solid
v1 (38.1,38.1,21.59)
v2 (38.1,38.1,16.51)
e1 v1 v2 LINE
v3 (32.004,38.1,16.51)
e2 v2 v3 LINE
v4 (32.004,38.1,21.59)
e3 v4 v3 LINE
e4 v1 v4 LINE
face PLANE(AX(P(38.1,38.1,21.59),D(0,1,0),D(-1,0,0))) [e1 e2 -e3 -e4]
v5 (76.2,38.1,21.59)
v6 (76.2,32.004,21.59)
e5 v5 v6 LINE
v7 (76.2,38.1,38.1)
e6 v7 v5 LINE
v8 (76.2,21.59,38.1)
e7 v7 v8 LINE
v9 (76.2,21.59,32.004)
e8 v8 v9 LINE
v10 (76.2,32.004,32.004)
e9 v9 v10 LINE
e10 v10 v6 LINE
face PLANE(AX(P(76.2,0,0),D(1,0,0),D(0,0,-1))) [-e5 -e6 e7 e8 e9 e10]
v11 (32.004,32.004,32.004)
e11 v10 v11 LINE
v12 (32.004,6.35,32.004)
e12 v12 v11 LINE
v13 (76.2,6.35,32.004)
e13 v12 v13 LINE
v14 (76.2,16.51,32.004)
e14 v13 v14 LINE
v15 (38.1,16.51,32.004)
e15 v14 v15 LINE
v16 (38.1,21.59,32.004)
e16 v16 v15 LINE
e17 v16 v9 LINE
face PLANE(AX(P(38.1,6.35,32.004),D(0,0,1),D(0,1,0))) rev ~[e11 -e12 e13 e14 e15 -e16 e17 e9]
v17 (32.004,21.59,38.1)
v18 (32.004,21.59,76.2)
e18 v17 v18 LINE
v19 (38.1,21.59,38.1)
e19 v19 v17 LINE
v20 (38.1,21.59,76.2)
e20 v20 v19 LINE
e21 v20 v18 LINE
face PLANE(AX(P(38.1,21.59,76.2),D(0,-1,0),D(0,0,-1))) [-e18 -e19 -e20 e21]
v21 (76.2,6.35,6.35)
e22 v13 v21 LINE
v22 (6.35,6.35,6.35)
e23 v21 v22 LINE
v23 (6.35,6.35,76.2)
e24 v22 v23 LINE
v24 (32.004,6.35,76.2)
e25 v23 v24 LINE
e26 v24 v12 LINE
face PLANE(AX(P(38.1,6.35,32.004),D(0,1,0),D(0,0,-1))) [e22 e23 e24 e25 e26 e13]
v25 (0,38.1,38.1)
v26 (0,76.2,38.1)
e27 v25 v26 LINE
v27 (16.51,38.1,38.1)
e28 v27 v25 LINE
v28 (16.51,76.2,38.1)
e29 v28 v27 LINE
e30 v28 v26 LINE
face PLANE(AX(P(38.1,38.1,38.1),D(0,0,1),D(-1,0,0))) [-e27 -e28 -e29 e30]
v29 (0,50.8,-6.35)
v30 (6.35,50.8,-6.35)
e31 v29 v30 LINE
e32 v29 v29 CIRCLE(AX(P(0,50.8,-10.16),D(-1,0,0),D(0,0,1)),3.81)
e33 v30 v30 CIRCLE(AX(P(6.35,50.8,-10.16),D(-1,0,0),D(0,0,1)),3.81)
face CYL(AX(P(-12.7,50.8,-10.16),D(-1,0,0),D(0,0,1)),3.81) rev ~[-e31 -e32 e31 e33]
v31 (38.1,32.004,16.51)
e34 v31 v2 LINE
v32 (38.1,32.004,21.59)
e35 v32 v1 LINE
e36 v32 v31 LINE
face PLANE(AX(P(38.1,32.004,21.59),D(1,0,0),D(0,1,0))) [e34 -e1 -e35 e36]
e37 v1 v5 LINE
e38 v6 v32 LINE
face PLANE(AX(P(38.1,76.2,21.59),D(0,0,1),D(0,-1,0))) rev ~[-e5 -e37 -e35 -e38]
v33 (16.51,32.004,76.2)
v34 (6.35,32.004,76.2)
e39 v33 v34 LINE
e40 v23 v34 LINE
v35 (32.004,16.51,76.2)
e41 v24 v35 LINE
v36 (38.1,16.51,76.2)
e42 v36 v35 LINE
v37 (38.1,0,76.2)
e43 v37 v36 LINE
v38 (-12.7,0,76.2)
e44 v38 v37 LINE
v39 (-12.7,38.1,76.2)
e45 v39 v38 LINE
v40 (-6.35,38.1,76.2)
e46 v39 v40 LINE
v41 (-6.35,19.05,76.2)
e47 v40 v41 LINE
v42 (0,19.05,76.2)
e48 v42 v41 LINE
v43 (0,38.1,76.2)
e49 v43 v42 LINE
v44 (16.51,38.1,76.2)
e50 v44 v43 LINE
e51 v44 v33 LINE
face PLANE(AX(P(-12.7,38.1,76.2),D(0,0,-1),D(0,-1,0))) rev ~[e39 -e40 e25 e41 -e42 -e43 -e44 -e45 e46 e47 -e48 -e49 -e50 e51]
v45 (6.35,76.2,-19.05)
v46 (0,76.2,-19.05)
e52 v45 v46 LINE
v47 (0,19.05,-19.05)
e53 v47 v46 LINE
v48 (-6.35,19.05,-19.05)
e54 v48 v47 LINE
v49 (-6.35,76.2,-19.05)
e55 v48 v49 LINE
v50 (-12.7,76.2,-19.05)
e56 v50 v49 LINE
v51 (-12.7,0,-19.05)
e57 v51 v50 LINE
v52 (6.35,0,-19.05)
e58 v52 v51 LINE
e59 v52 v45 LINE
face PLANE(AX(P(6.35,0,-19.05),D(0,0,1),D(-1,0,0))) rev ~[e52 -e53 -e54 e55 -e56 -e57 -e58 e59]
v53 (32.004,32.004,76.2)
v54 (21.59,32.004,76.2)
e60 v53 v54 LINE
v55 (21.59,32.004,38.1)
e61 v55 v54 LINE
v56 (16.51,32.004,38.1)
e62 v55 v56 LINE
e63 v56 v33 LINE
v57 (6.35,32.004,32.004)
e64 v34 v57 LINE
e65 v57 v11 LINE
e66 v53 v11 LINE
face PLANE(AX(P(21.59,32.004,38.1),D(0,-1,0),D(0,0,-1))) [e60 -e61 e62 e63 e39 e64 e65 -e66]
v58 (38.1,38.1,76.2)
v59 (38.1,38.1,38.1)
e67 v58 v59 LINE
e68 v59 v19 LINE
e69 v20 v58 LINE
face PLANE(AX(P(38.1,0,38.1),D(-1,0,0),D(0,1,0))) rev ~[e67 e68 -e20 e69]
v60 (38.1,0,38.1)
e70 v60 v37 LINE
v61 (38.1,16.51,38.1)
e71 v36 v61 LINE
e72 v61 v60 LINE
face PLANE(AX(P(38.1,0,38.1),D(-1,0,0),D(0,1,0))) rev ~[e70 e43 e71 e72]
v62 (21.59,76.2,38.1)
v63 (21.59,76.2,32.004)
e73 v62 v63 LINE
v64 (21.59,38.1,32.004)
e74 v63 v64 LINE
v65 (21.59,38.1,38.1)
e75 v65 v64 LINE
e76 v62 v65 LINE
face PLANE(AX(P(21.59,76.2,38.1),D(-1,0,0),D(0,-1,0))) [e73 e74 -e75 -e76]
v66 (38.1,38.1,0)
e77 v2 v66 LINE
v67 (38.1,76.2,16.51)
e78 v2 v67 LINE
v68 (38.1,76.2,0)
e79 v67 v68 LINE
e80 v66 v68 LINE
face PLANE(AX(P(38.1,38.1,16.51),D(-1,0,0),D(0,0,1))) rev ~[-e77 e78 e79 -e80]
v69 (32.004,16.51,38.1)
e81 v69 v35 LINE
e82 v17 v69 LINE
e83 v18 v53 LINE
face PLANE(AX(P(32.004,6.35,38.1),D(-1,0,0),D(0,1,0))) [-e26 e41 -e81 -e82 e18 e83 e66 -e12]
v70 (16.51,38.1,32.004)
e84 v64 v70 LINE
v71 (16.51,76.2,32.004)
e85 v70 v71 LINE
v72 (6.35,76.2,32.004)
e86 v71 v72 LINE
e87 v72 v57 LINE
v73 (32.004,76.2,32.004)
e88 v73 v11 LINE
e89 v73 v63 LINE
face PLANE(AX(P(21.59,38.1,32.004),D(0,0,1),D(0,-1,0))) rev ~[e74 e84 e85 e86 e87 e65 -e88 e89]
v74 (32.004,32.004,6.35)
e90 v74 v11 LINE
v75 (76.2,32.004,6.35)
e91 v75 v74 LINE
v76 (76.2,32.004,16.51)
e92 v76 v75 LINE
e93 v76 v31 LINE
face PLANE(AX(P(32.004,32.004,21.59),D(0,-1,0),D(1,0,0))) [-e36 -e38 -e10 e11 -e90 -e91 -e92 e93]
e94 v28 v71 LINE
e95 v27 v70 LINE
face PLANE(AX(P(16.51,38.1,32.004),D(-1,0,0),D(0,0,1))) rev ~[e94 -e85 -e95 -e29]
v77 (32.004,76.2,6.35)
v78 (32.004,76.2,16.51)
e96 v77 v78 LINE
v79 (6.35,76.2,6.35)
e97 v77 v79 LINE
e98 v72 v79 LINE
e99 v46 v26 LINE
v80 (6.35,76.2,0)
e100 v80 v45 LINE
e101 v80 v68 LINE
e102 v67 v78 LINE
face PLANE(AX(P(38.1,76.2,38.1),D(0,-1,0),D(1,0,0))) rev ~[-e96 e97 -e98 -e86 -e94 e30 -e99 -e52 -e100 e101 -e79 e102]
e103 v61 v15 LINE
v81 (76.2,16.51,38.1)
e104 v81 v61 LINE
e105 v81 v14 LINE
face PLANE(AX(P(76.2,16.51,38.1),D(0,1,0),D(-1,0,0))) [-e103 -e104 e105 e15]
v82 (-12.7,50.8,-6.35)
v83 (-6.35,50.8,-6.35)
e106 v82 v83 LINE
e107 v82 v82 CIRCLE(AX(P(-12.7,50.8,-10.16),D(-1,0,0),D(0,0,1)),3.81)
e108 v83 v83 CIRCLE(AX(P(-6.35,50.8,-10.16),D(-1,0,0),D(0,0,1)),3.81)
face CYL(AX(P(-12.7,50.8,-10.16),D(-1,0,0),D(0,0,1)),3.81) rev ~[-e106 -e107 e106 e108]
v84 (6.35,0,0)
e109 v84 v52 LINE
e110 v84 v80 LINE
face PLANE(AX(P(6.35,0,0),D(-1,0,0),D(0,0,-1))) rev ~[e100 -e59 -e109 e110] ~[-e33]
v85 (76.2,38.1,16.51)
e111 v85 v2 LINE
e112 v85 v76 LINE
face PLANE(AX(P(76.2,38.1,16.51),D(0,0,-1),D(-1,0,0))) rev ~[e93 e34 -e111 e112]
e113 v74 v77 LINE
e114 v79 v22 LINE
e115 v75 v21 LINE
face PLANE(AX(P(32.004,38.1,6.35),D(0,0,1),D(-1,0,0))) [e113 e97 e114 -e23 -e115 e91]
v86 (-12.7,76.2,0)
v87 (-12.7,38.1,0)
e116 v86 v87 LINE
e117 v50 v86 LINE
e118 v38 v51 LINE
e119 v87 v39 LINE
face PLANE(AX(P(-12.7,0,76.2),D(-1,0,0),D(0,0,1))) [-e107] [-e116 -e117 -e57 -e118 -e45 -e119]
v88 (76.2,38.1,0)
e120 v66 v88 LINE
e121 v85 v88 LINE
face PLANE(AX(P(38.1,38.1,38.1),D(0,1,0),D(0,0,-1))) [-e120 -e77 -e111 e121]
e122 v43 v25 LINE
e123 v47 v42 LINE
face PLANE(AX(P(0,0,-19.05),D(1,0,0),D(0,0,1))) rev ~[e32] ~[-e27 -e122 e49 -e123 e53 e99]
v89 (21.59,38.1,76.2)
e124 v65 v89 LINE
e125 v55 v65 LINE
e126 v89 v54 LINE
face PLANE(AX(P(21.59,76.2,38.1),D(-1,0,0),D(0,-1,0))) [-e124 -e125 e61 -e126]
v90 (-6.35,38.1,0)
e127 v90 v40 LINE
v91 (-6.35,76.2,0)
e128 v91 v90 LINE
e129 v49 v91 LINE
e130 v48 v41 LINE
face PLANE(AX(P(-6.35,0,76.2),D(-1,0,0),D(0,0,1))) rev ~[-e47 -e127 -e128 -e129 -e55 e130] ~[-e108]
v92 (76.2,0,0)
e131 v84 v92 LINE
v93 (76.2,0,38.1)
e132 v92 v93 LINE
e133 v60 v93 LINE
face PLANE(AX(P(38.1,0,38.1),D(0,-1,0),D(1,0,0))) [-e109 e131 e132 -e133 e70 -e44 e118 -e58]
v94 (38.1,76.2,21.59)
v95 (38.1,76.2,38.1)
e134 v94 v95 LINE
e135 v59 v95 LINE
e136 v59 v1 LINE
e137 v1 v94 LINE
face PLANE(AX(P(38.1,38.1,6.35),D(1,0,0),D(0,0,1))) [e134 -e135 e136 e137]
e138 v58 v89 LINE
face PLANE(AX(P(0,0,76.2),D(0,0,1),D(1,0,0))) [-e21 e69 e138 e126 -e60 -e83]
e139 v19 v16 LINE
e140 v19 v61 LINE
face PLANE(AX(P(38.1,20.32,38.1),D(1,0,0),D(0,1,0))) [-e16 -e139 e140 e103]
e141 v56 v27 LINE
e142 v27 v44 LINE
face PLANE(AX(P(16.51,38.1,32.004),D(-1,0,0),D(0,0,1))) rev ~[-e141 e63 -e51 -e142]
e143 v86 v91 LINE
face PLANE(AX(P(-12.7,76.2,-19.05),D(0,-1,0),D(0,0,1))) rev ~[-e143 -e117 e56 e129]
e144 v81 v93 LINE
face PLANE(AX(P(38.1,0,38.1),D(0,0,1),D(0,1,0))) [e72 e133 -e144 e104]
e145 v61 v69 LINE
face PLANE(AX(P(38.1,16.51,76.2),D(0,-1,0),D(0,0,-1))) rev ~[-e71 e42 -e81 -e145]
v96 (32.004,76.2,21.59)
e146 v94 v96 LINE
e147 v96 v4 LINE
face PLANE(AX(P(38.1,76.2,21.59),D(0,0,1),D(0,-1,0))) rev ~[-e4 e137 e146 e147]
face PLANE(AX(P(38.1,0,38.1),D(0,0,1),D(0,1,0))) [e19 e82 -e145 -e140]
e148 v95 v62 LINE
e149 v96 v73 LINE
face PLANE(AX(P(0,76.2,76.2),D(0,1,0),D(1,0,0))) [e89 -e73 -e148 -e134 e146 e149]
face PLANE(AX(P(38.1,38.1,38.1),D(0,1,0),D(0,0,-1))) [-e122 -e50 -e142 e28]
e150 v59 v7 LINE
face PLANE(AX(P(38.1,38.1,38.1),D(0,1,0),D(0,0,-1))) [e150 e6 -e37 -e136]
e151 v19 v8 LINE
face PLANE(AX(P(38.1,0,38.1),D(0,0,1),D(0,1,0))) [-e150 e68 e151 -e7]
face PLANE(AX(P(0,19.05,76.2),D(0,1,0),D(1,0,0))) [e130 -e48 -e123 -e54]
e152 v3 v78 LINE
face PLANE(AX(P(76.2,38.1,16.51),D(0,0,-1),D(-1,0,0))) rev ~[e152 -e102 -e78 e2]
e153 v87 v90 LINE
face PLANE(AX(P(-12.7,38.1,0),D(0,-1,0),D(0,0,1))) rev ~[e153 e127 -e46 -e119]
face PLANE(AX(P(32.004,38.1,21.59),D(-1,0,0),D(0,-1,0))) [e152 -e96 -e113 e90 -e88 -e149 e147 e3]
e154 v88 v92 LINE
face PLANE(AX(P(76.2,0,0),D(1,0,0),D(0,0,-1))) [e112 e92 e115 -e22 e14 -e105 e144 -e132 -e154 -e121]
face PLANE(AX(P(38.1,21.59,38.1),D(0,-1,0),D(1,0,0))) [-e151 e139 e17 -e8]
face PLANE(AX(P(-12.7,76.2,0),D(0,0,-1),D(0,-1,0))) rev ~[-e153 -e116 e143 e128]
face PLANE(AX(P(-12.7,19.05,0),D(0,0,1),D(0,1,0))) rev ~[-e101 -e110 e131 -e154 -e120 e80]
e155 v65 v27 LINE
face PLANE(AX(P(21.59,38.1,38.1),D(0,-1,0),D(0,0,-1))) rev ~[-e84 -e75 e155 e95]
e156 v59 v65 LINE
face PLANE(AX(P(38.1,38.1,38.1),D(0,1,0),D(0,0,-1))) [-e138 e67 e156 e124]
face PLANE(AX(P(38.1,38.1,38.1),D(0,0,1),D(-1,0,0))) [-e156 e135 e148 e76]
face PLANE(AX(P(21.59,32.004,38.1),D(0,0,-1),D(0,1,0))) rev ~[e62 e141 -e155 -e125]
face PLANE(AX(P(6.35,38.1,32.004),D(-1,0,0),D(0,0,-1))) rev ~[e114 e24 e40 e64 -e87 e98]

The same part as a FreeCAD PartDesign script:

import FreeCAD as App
import Part
import Sketcher

V = App.Vector
Q = App.Units.Quantity


def add_polygon(sketch, points):
    """Adds a closed chain of lines whose ends are joined by coincident constraints."""
    first, n = sketch.GeometryCount, len(points)
    for a, b in zip(points, points[1:] + points[:1]):
        sketch.addGeometry(Part.LineSegment(App.Vector(*a, 0), App.Vector(*b, 0)), False)
    for i in range(n):
        sketch.addConstraint(Sketcher.Constraint("Coincident", first + i, 2, first + (i + 1) % n, 1))

doc = App.newDocument("Part")
body = doc.addObject("PartDesign::Body", "Body")

sketch1 = doc.addObject("Sketcher::SketchObject", "Sketch")
body.addObject(sketch1)
sketch1.AttachmentSupport = (doc.XY_Plane, [""])
sketch1.MapMode = "FlatFace"
add_polygon(sketch1, [(0, 38), (0, 0), (38, 0), (38, 38)])
sketch1.addConstraint(Sketcher.Constraint("Vertical", 0))
sketch1.addConstraint(Sketcher.Constraint("Horizontal", 1))
sketch1.addConstraint(Sketcher.Constraint("Vertical", 2))
sketch1.addConstraint(Sketcher.Constraint("Horizontal", 3))
sketch1.addConstraint(Sketcher.Constraint("Coincident", 0, 2, -1, 1))
sketch1.addConstraint(Sketcher.Constraint("Equal", 3, 0))
sketch1.addConstraint(Sketcher.Constraint("DistanceX", 1, 1, 1, 2, Q("1.5 in")))
pad1 = doc.addObject("PartDesign::Pad", "Pad")
body.addObject(pad1)
pad1.Profile = sketch1
pad1.Length = Q("1.5 in")

sketch2 = doc.addObject("Sketcher::SketchObject", "Sketch001")
body.addObject(sketch2)
sketch2.AttachmentSupport = (doc.XY_Plane, [""])
sketch2.MapMode = "FlatFace"
sketch2.AttachmentOffset = App.Placement(V(0, 0, 1.5 * 25.4), App.Rotation())
add_polygon(sketch2, [(6, 32), (6, 6), (32, 6), (32, 32)])
sketch2.addConstraint(Sketcher.Constraint("Vertical", 0))
sketch2.addConstraint(Sketcher.Constraint("Horizontal", 1))
sketch2.addConstraint(Sketcher.Constraint("Vertical", 2))
sketch2.addConstraint(Sketcher.Constraint("Horizontal", 3))
sketch2.addConstraint(Sketcher.Constraint("Equal", 3, 0))
sketch2.addConstraint(Sketcher.Constraint("DistanceX", 1, 1, 1, 2, Q("1.01 in")))
sketch2.addConstraint(Sketcher.Constraint("DistanceX", -1, 1, 0, 2, Q("0.25 in")))
sketch2.addConstraint(Sketcher.Constraint("DistanceY", -1, 1, 0, 2, Q("0.25 in")))
pocket1 = doc.addObject("PartDesign::Pocket", "Pocket")
body.addObject(pocket1)
pocket1.Profile = sketch2
pocket1.Length = Q("1.25 in")

sketch3 = doc.addObject("Sketcher::SketchObject", "Sketch002")
body.addObject(sketch3)
sketch3.AttachmentSupport = (doc.XY_Plane, [""])
sketch3.MapMode = "FlatFace"
sketch3.AttachmentOffset = App.Placement(V(0, 0, 1.5 * 25.4), App.Rotation())
add_polygon(sketch3, [(0, 38), (0, 0), (38, 0), (38, 38)])
add_polygon(sketch3, [(32, 6), (6, 6), (6, 32), (32, 32)])
sketch3.addConstraint(Sketcher.Constraint("Vertical", 0))
sketch3.addConstraint(Sketcher.Constraint("Horizontal", 1))
sketch3.addConstraint(Sketcher.Constraint("Vertical", 2))
sketch3.addConstraint(Sketcher.Constraint("Horizontal", 3))
sketch3.addConstraint(Sketcher.Constraint("Horizontal", 4))
sketch3.addConstraint(Sketcher.Constraint("Vertical", 5))
sketch3.addConstraint(Sketcher.Constraint("Horizontal", 6))
sketch3.addConstraint(Sketcher.Constraint("Vertical", 7))
sketch3.addConstraint(Sketcher.Constraint("Coincident", 0, 2, -1, 1))
sketch3.addConstraint(Sketcher.Constraint("Equal", 3, 0))
sketch3.addConstraint(Sketcher.Constraint("Equal", 6, 5))
sketch3.addConstraint(Sketcher.Constraint("DistanceX", 1, 1, 1, 2, Q("1.5 in")))
sketch3.addConstraint(Sketcher.Constraint("DistanceX", 4, 2, 4, 1, Q("1.01 in")))
sketch3.addConstraint(Sketcher.Constraint("DistanceX", -1, 1, 4, 2, Q("0.25 in")))
sketch3.addConstraint(Sketcher.Constraint("DistanceY", -1, 1, 4, 2, Q("0.25 in")))
pad2 = doc.addObject("PartDesign::Pad", "Pad001")
body.addObject(pad2)
pad2.Profile = sketch3
pad2.Length = Q("1.5 in")

sketch4 = doc.addObject("Sketcher::SketchObject", "Sketch003")
body.addObject(sketch4)
sketch4.AttachmentSupport = (doc.YZ_Plane, [""])
sketch4.MapMode = "FlatFace"
sketch4.AttachmentOffset = App.Placement(V(0, 0, 1.5 * 25.4), App.Rotation())
add_polygon(sketch4, [(0, 38), (0, 0), (38, 0), (38, 38), (6, 38)])
add_polygon(sketch4, [(6, 6), (6, 32), (32, 32), (32, 6)])
sketch4.addConstraint(Sketcher.Constraint("Vertical", 0))
sketch4.addConstraint(Sketcher.Constraint("Horizontal", 1))
sketch4.addConstraint(Sketcher.Constraint("Vertical", 2))
sketch4.addConstraint(Sketcher.Constraint("Horizontal", 3))
sketch4.addConstraint(Sketcher.Constraint("Horizontal", 4))
sketch4.addConstraint(Sketcher.Constraint("Vertical", 5))
sketch4.addConstraint(Sketcher.Constraint("Horizontal", 6))
sketch4.addConstraint(Sketcher.Constraint("Vertical", 7))
sketch4.addConstraint(Sketcher.Constraint("Horizontal", 8))
sketch4.addConstraint(Sketcher.Constraint("Coincident", 0, 2, -1, 1))
sketch4.addConstraint(Sketcher.Constraint("Vertical", 3, 2, 5, 2))
sketch4.addConstraint(Sketcher.Constraint("Equal", 1, 0))
sketch4.addConstraint(Sketcher.Constraint("Equal", 8, 5))
sketch4.addConstraint(Sketcher.Constraint("DistanceX", 1, 1, 1, 2, Q("1.5 in")))
sketch4.addConstraint(Sketcher.Constraint("DistanceX", 6, 1, 6, 2, Q("1.01 in")))
sketch4.addConstraint(Sketcher.Constraint("DistanceX", 3, 2, 3, 1, Q("1.25 in")))
sketch4.addConstraint(Sketcher.Constraint("DistanceY", -1, 1, 5, 2, Q("1.26 in")))
pad3 = doc.addObject("PartDesign::Pad", "Pad002")
body.addObject(pad3)
pad3.Profile = sketch4
pad3.Length = Q("1.5 in")

sketch5 = doc.addObject("Sketcher::SketchObject", "Sketch004")
body.addObject(sketch5)
sketch5.AttachmentSupport = (doc.YZ_Plane, [""])
sketch5.MapMode = "FlatFace"
sketch5.AttachmentOffset = App.Placement(V(0, 0, 1.5 * 25.4), App.Rotation())
add_polygon(sketch5, [(32, 32), (6, 32), (6, 6), (32, 6)])
sketch5.addConstraint(Sketcher.Constraint("Horizontal", 0))
sketch5.addConstraint(Sketcher.Constraint("Vertical", 1))
sketch5.addConstraint(Sketcher.Constraint("Horizontal", 2))
sketch5.addConstraint(Sketcher.Constraint("Vertical", 3))
sketch5.addConstraint(Sketcher.Constraint("Equal", 2, 1))
sketch5.addConstraint(Sketcher.Constraint("DistanceX", 0, 2, 0, 1, Q("1.01 in")))
sketch5.addConstraint(Sketcher.Constraint("DistanceX", -1, 1, 0, 2, Q("0.25 in")))
sketch5.addConstraint(Sketcher.Constraint("DistanceY", -1, 1, 0, 2, Q("1.26 in")))
pocket2 = doc.addObject("PartDesign::Pocket", "Pocket001")
body.addObject(pocket2)
pocket2.Profile = sketch5
pocket2.Length = Q("1.25 in")

sketch6 = doc.addObject("Sketcher::SketchObject", "Sketch005")
body.addObject(sketch6)
sketch6.AttachmentSupport = (doc.XZ_Plane, [""])
sketch6.MapMode = "FlatFace"
sketch6.AttachmentOffset = App.Placement(V(0, 0, -1.5 * 25.4), App.Rotation())
add_polygon(sketch6, [(38, 38), (38, 6), (38, 0), (0, 0), (0, 38)])
add_polygon(sketch6, [(6, 6), (32, 6), (32, 32), (6, 32)])
sketch6.addConstraint(Sketcher.Constraint("Vertical", 0))
sketch6.addConstraint(Sketcher.Constraint("Vertical", 1))
sketch6.addConstraint(Sketcher.Constraint("Horizontal", 2))
sketch6.addConstraint(Sketcher.Constraint("Vertical", 3))
sketch6.addConstraint(Sketcher.Constraint("Horizontal", 4))
sketch6.addConstraint(Sketcher.Constraint("Horizontal", 5))
sketch6.addConstraint(Sketcher.Constraint("Vertical", 6))
sketch6.addConstraint(Sketcher.Constraint("Horizontal", 7))
sketch6.addConstraint(Sketcher.Constraint("Vertical", 8))
sketch6.addConstraint(Sketcher.Constraint("Coincident", 2, 2, -1, 1))
sketch6.addConstraint(Sketcher.Constraint("Horizontal", 0, 2, 5, 2))
sketch6.addConstraint(Sketcher.Constraint("Equal", 4, 3))
sketch6.addConstraint(Sketcher.Constraint("Equal", 7, 6))
sketch6.addConstraint(Sketcher.Constraint("DistanceX", 5, 1, 5, 2, Q("1.01 in")))
sketch6.addConstraint(Sketcher.Constraint("DistanceX", 2, 2, 2, 1, Q("1.5 in")))
sketch6.addConstraint(Sketcher.Constraint("DistanceY", 0, 2, 0, 1, Q("1.25 in")))
sketch6.addConstraint(Sketcher.Constraint("DistanceX", -1, 1, 5, 2, Q("1.26 in")))
pad4 = doc.addObject("PartDesign::Pad", "Pad003")
body.addObject(pad4)
pad4.Profile = sketch6
pad4.Length = Q("1.5 in")
pad4.Reversed = True

sketch7 = doc.addObject("Sketcher::SketchObject", "Sketch006")
body.addObject(sketch7)
sketch7.AttachmentSupport = (doc.XZ_Plane, [""])
sketch7.MapMode = "FlatFace"
sketch7.AttachmentOffset = App.Placement(V(0, 0, -1.5 * 25.4), App.Rotation())
add_polygon(sketch7, [(6, 6), (6, 32), (32, 32), (32, 6)])
sketch7.addConstraint(Sketcher.Constraint("Vertical", 0))
sketch7.addConstraint(Sketcher.Constraint("Horizontal", 1))
sketch7.addConstraint(Sketcher.Constraint("Vertical", 2))
sketch7.addConstraint(Sketcher.Constraint("Horizontal", 3))
sketch7.addConstraint(Sketcher.Constraint("Equal", 3, 0))
sketch7.addConstraint(Sketcher.Constraint("DistanceX", 1, 1, 1, 2, Q("1.01 in")))
sketch7.addConstraint(Sketcher.Constraint("DistanceX", -1, 1, 0, 2, Q("0.25 in")))
sketch7.addConstraint(Sketcher.Constraint("DistanceY", -1, 1, 0, 2, Q("1.26 in")))
pocket3 = doc.addObject("PartDesign::Pocket", "Pocket002")
body.addObject(pocket3)
pocket3.Profile = sketch7
pocket3.Length = Q("0.25 in")
pocket3.Reversed = True

sketch8 = doc.addObject("Sketcher::SketchObject", "Sketch007")
body.addObject(sketch8)
sketch8.AttachmentSupport = (doc.XZ_Plane, [""])
sketch8.MapMode = "FlatFace"
sketch8.AttachmentOffset = App.Placement(V(0, 0, -3 * 25.4), App.Rotation())
add_polygon(sketch8, [(32, 20.3), (38.1, 20.3), (38.1, 17.8), (32, 17.8)])
sketch8.addConstraint(Sketcher.Constraint("Horizontal", 0))
sketch8.addConstraint(Sketcher.Constraint("Vertical", 1))
sketch8.addConstraint(Sketcher.Constraint("Horizontal", 2))
sketch8.addConstraint(Sketcher.Constraint("Vertical", 3))
sketch8.addConstraint(Sketcher.Constraint("DistanceY", 1, 2, 1, 1, Q("0.1 in")))
sketch8.addConstraint(Sketcher.Constraint("DistanceX", 0, 1, 0, 2, Q("0.24 in")))
sketch8.addConstraint(Sketcher.Constraint("DistanceX", -1, 1, 0, 2, Q("1.5 in")))
sketch8.addConstraint(Sketcher.Constraint("DistanceY", -1, 1, 0, 2, Q("0.8 in")))
pocket4 = doc.addObject("PartDesign::Pocket", "Pocket003")
body.addObject(pocket4)
pocket4.Profile = sketch8
pocket4.Length = Q("1.5 in")
pocket4.Reversed = True

sketch9 = doc.addObject("Sketcher::SketchObject", "Sketch008")
body.addObject(sketch9)
sketch9.AttachmentSupport = (doc.XZ_Plane, [""])
sketch9.MapMode = "FlatFace"
sketch9.AttachmentOffset = App.Placement(V(0, 0, -1.5 * 25.4), App.Rotation())
add_polygon(sketch9, [(76.2, 20.3), (76.2, 17.8), (32, 17.8), (32, 20.3)])
sketch9.addConstraint(Sketcher.Constraint("Vertical", 0))
sketch9.addConstraint(Sketcher.Constraint("Horizontal", 1))
sketch9.addConstraint(Sketcher.Constraint("Vertical", 2))
sketch9.addConstraint(Sketcher.Constraint("Horizontal", 3))
sketch9.addConstraint(Sketcher.Constraint("DistanceY", 0, 2, 0, 1, Q("0.1 in")))
sketch9.addConstraint(Sketcher.Constraint("DistanceX", -1, 1, 0, 2, Q("3 in")))
sketch9.addConstraint(Sketcher.Constraint("DistanceX", 1, 2, 1, 1, Q("1.74 in")))
sketch9.addConstraint(Sketcher.Constraint("DistanceY", -1, 1, 0, 2, Q("0.7 in")))
pocket5 = doc.addObject("PartDesign::Pocket", "Pocket004")
body.addObject(pocket5)
pocket5.Profile = sketch9
pocket5.Length = Q("0.25 in")
pocket5.Reversed = True

sketch10 = doc.addObject("Sketcher::SketchObject", "Sketch009")
body.addObject(sketch10)
sketch10.AttachmentSupport = (doc.XZ_Plane, [""])
sketch10.MapMode = "FlatFace"
sketch10.AttachmentOffset = App.Placement(V(0, 0, -3 * 25.4), App.Rotation())
add_polygon(sketch10, [(17.8, 32), (17.8, 38.1), (20.3, 38.1), (20.3, 32)])
sketch10.addConstraint(Sketcher.Constraint("Vertical", 0))
sketch10.addConstraint(Sketcher.Constraint("Horizontal", 1))
sketch10.addConstraint(Sketcher.Constraint("Vertical", 2))
sketch10.addConstraint(Sketcher.Constraint("Horizontal", 3))
sketch10.addConstraint(Sketcher.Constraint("DistanceX", 1, 1, 1, 2, Q("0.1 in")))
sketch10.addConstraint(Sketcher.Constraint("DistanceY", 0, 1, 0, 2, Q("0.24 in")))
sketch10.addConstraint(Sketcher.Constraint("DistanceX", -1, 1, 0, 2, Q("0.7 in")))
sketch10.addConstraint(Sketcher.Constraint("DistanceY", -1, 1, 0, 2, Q("1.5 in")))
pocket6 = doc.addObject("PartDesign::Pocket", "Pocket005")
body.addObject(pocket6)
pocket6.Profile = sketch10
pocket6.Length = Q("1.5 in")
pocket6.Reversed = True

sketch11 = doc.addObject("Sketcher::SketchObject", "Sketch010")
body.addObject(sketch11)
sketch11.AttachmentSupport = (doc.XZ_Plane, [""])
sketch11.MapMode = "FlatFace"
sketch11.AttachmentOffset = App.Placement(V(0, 0, -1.5 * 25.4), App.Rotation())
add_polygon(sketch11, [(20.3, 76.2), (20.3, 32), (17.8, 32), (17.8, 76.2)])
sketch11.addConstraint(Sketcher.Constraint("Vertical", 0))
sketch11.addConstraint(Sketcher.Constraint("Horizontal", 1))
sketch11.addConstraint(Sketcher.Constraint("Vertical", 2))
sketch11.addConstraint(Sketcher.Constraint("Horizontal", 3))
sketch11.addConstraint(Sketcher.Constraint("DistanceX", 1, 2, 1, 1, Q("0.1 in")))
sketch11.addConstraint(Sketcher.Constraint("DistanceY", -1, 1, 2, 2, Q("3 in")))
sketch11.addConstraint(Sketcher.Constraint("DistanceY", 0, 2, 0, 1, Q("1.74 in")))
sketch11.addConstraint(Sketcher.Constraint("DistanceX", -1, 1, 0, 2, Q("0.8 in")))
pocket7 = doc.addObject("PartDesign::Pocket", "Pocket006")
body.addObject(pocket7)
pocket7.Profile = sketch11
pocket7.Length = Q("0.25 in")
pocket7.Reversed = True

sketch12 = doc.addObject("Sketcher::SketchObject", "Sketch011")
body.addObject(sketch12)
sketch12.AttachmentSupport = (doc.YZ_Plane, [""])
sketch12.MapMode = "FlatFace"
sketch12.AttachmentOffset = App.Placement(V(0, 0, 1.5 * 25.4), App.Rotation())
add_polygon(sketch12, [(17.8, 76.2), (17.8, 38.1), (20.3, 38.1), (20.3, 76.2)])
sketch12.addConstraint(Sketcher.Constraint("Vertical", 0))
sketch12.addConstraint(Sketcher.Constraint("Horizontal", 1))
sketch12.addConstraint(Sketcher.Constraint("Vertical", 2))
sketch12.addConstraint(Sketcher.Constraint("Horizontal", 3))
sketch12.addConstraint(Sketcher.Constraint("DistanceX", 1, 1, 1, 2, Q("0.1 in")))
sketch12.addConstraint(Sketcher.Constraint("DistanceY", 0, 2, 0, 1, Q("1.5 in")))
sketch12.addConstraint(Sketcher.Constraint("DistanceY", -1, 1, 2, 2, Q("3 in")))
sketch12.addConstraint(Sketcher.Constraint("DistanceX", -1, 1, 0, 2, Q("0.7 in")))
pocket8 = doc.addObject("PartDesign::Pocket", "Pocket007")
body.addObject(pocket8)
pocket8.Profile = sketch12
pocket8.Length = Q("0.25 in")

sketch13 = doc.addObject("Sketcher::SketchObject", "Sketch012")
body.addObject(sketch13)
sketch13.AttachmentSupport = (doc.XY_Plane, [""])
sketch13.MapMode = "FlatFace"
sketch13.AttachmentOffset = App.Placement(V(0, 0, 1.5 * 25.4), App.Rotation())
add_polygon(sketch13, [(38.1, 20.3), (38.1, 17.8), (76.2, 17.8), (76.2, 20.3)])
sketch13.addConstraint(Sketcher.Constraint("Vertical", 0))
sketch13.addConstraint(Sketcher.Constraint("Horizontal", 1))
sketch13.addConstraint(Sketcher.Constraint("Vertical", 2))
sketch13.addConstraint(Sketcher.Constraint("Horizontal", 3))
sketch13.addConstraint(Sketcher.Constraint("DistanceX", 1, 1, 1, 2, Q("1.5 in")))
sketch13.addConstraint(Sketcher.Constraint("DistanceY", 0, 2, 0, 1, Q("0.1 in")))
sketch13.addConstraint(Sketcher.Constraint("DistanceX", -1, 1, 0, 2, Q("1.5 in")))
sketch13.addConstraint(Sketcher.Constraint("DistanceY", -1, 1, 0, 2, Q("0.7 in")))
pocket9 = doc.addObject("PartDesign::Pocket", "Pocket008")
body.addObject(pocket9)
pocket9.Profile = sketch13
pocket9.Length = Q("0.25 in")

sketch14 = doc.addObject("Sketcher::SketchObject", "Sketch013")
body.addObject(sketch14)
sketch14.AttachmentSupport = (doc.XY_Plane, [""])
sketch14.MapMode = "FlatFace"
sketch14.AttachmentOffset = App.Placement(V(0, 0, 1.5 * 25.4), App.Rotation())
add_polygon(sketch14, [(20.3, 76.2), (20.3, 38.1), (21.6, 38.1), (21.6, 76.2)])
sketch14.addConstraint(Sketcher.Constraint("Vertical", 0))
sketch14.addConstraint(Sketcher.Constraint("Horizontal", 1))
sketch14.addConstraint(Sketcher.Constraint("Vertical", 2))
sketch14.addConstraint(Sketcher.Constraint("Horizontal", 3))
sketch14.addConstraint(Sketcher.Constraint("DistanceX", 1, 1, 1, 2, Q("0.05 in")))
sketch14.addConstraint(Sketcher.Constraint("DistanceY", 0, 2, 0, 1, Q("1.5 in")))
sketch14.addConstraint(Sketcher.Constraint("DistanceY", -1, 1, 2, 2, Q("3 in")))
sketch14.addConstraint(Sketcher.Constraint("DistanceX", -1, 1, 0, 2, Q("0.8 in")))
pocket10 = doc.addObject("PartDesign::Pocket", "Pocket009")
body.addObject(pocket10)
pocket10.Profile = sketch14
pocket10.Length = Q("0.25 in")

sketch15 = doc.addObject("Sketcher::SketchObject", "Sketch014")
body.addObject(sketch15)
sketch15.AttachmentSupport = (doc.XZ_Plane, [""])
sketch15.MapMode = "FlatFace"
sketch15.AttachmentOffset = App.Placement(V(0, 0, -1.5 * 25.4), App.Rotation())
add_polygon(sketch15, [(20.3, 32), (20.3, 76.2), (21.6, 76.2), (21.6, 32)])
sketch15.addConstraint(Sketcher.Constraint("Vertical", 0))
sketch15.addConstraint(Sketcher.Constraint("Horizontal", 1))
sketch15.addConstraint(Sketcher.Constraint("Vertical", 2))
sketch15.addConstraint(Sketcher.Constraint("Horizontal", 3))
sketch15.addConstraint(Sketcher.Constraint("DistanceX", 1, 1, 1, 2, Q("0.05 in")))
sketch15.addConstraint(Sketcher.Constraint("DistanceY", -1, 1, 0, 2, Q("3 in")))
sketch15.addConstraint(Sketcher.Constraint("DistanceY", 0, 1, 0, 2, Q("1.74 in")))
sketch15.addConstraint(Sketcher.Constraint("DistanceX", -1, 1, 0, 2, Q("0.8 in")))
pocket11 = doc.addObject("PartDesign::Pocket", "Pocket010")
body.addObject(pocket11)
pocket11.Profile = sketch15
pocket11.Length = Q("0.25 in")
pocket11.Reversed = True

sketch16 = doc.addObject("Sketcher::SketchObject", "Sketch015")
body.addObject(sketch16)
sketch16.AttachmentSupport = (doc.XY_Plane, [""])
sketch16.MapMode = "FlatFace"
sketch16.AttachmentOffset = App.Placement(V(0, 0, 1.5 * 25.4), App.Rotation())
add_polygon(sketch16, [(16.5, 38.1), (17.8, 38.1), (17.8, 76.2), (16.5, 76.2)])
sketch16.addConstraint(Sketcher.Constraint("Horizontal", 0))
sketch16.addConstraint(Sketcher.Constraint("Vertical", 1))
sketch16.addConstraint(Sketcher.Constraint("Horizontal", 2))
sketch16.addConstraint(Sketcher.Constraint("Vertical", 3))
sketch16.addConstraint(Sketcher.Constraint("DistanceX", 0, 1, 0, 2, Q("0.05 in")))
sketch16.addConstraint(Sketcher.Constraint("DistanceY", 1, 1, 1, 2, Q("1.5 in")))
sketch16.addConstraint(Sketcher.Constraint("DistanceY", -1, 1, 1, 2, Q("3 in")))
sketch16.addConstraint(Sketcher.Constraint("DistanceX", -1, 1, 0, 2, Q("0.7 in")))
pocket12 = doc.addObject("PartDesign::Pocket", "Pocket011")
body.addObject(pocket12)
pocket12.Profile = sketch16
pocket12.Length = Q("0.25 in")

sketch17 = doc.addObject("Sketcher::SketchObject", "Sketch016")
body.addObject(sketch17)
sketch17.AttachmentSupport = (doc.XZ_Plane, [""])
sketch17.MapMode = "FlatFace"
sketch17.AttachmentOffset = App.Placement(V(0, 0, -1.5 * 25.4), App.Rotation())
add_polygon(sketch17, [(17.8, 76.2), (17.8, 32), (16.5, 32), (16.5, 76.2)])
sketch17.addConstraint(Sketcher.Constraint("Vertical", 0))
sketch17.addConstraint(Sketcher.Constraint("Horizontal", 1))
sketch17.addConstraint(Sketcher.Constraint("Vertical", 2))
sketch17.addConstraint(Sketcher.Constraint("Horizontal", 3))
sketch17.addConstraint(Sketcher.Constraint("DistanceX", 1, 2, 1, 1, Q("0.05 in")))
sketch17.addConstraint(Sketcher.Constraint("DistanceY", -1, 1, 2, 2, Q("3 in")))
sketch17.addConstraint(Sketcher.Constraint("DistanceY", 0, 2, 0, 1, Q("1.74 in")))
sketch17.addConstraint(Sketcher.Constraint("DistanceX", -1, 1, 0, 2, Q("0.7 in")))
pocket13 = doc.addObject("PartDesign::Pocket", "Pocket012")
body.addObject(pocket13)
pocket13.Profile = sketch17
pocket13.Length = Q("0.25 in")
pocket13.Reversed = True

sketch18 = doc.addObject("Sketcher::SketchObject", "Sketch017")
body.addObject(sketch18)
sketch18.AttachmentSupport = (doc.YZ_Plane, [""])
sketch18.MapMode = "FlatFace"
sketch18.AttachmentOffset = App.Placement(V(0, 0, 1.5 * 25.4), App.Rotation())
add_polygon(sketch18, [(16.5, 76.2), (16.5, 38.1), (17.8, 38.1), (17.8, 76.2)])
sketch18.addConstraint(Sketcher.Constraint("Vertical", 0))
sketch18.addConstraint(Sketcher.Constraint("Horizontal", 1))
sketch18.addConstraint(Sketcher.Constraint("Vertical", 2))
sketch18.addConstraint(Sketcher.Constraint("Horizontal", 3))
sketch18.addConstraint(Sketcher.Constraint("DistanceY", 0, 2, 0, 1, Q("1.5 in")))
sketch18.addConstraint(Sketcher.Constraint("DistanceX", 1, 1, 1, 2, Q("0.05 in")))
sketch18.addConstraint(Sketcher.Constraint("DistanceY", -1, 1, 0, 2, Q("1.5 in")))
sketch18.addConstraint(Sketcher.Constraint("DistanceX", -1, 1, 1, 2, Q("0.7 in")))
pocket14 = doc.addObject("PartDesign::Pocket", "Pocket013")
body.addObject(pocket14)
pocket14.Profile = sketch18
pocket14.Length = Q("0.25 in")

sketch19 = doc.addObject("Sketcher::SketchObject", "Sketch018")
body.addObject(sketch19)
sketch19.AttachmentSupport = (doc.YZ_Plane, [""])
sketch19.MapMode = "FlatFace"
sketch19.AttachmentOffset = App.Placement(V(0, 0, 1.5 * 25.4), App.Rotation())
add_polygon(sketch19, [(21.6, 76.2), (20.3, 76.2), (20.3, 38.1), (21.6, 38.1)])
sketch19.addConstraint(Sketcher.Constraint("Horizontal", 0))
sketch19.addConstraint(Sketcher.Constraint("Vertical", 1))
sketch19.addConstraint(Sketcher.Constraint("Horizontal", 2))
sketch19.addConstraint(Sketcher.Constraint("Vertical", 3))
sketch19.addConstraint(Sketcher.Constraint("DistanceY", 1, 2, 1, 1, Q("1.5 in")))
sketch19.addConstraint(Sketcher.Constraint("DistanceX", 0, 2, 0, 1, Q("0.05 in")))
sketch19.addConstraint(Sketcher.Constraint("DistanceY", -1, 1, 1, 2, Q("1.5 in")))
sketch19.addConstraint(Sketcher.Constraint("DistanceX", -1, 1, 0, 2, Q("0.8 in")))
pocket15 = doc.addObject("PartDesign::Pocket", "Pocket014")
body.addObject(pocket15)
pocket15.Profile = sketch19
pocket15.Length = Q("0.25 in")

sketch20 = doc.addObject("Sketcher::SketchObject", "Sketch019")
body.addObject(sketch20)
sketch20.AttachmentSupport = (doc.XY_Plane, [""])
sketch20.MapMode = "FlatFace"
sketch20.AttachmentOffset = App.Placement(V(0, 0, 1.5 * 25.4), App.Rotation())
add_polygon(sketch20, [(38.1, 21.6), (38.1, 20.3), (76.2, 20.3), (76.2, 21.6)])
add_polygon(sketch20, [(76.2, 16.5), (76.2, 17.8), (38.1, 17.8), (38.1, 16.5)])
sketch20.addConstraint(Sketcher.Constraint("Vertical", 0))
sketch20.addConstraint(Sketcher.Constraint("Horizontal", 1))
sketch20.addConstraint(Sketcher.Constraint("Vertical", 2))
sketch20.addConstraint(Sketcher.Constraint("Horizontal", 3))
sketch20.addConstraint(Sketcher.Constraint("Vertical", 4))
sketch20.addConstraint(Sketcher.Constraint("Horizontal", 5))
sketch20.addConstraint(Sketcher.Constraint("Vertical", 6))
sketch20.addConstraint(Sketcher.Constraint("Horizontal", 7))
sketch20.addConstraint(Sketcher.Constraint("Vertical", 2, 2, 4, 2))
sketch20.addConstraint(Sketcher.Constraint("Vertical", 3, 2, 5, 2))
sketch20.addConstraint(Sketcher.Constraint("Equal", 2, 4))
sketch20.addConstraint(Sketcher.Constraint("DistanceX", 1, 1, 1, 2, Q("1.5 in")))
sketch20.addConstraint(Sketcher.Constraint("DistanceY", 0, 2, 0, 1, Q("0.05 in")))
sketch20.addConstraint(Sketcher.Constraint("DistanceX", -1, 1, 0, 2, Q("1.5 in")))
sketch20.addConstraint(Sketcher.Constraint("DistanceY", -1, 1, 0, 2, Q("0.8 in")))
sketch20.addConstraint(Sketcher.Constraint("DistanceY", -1, 1, 4, 2, Q("0.7 in")))
pocket16 = doc.addObject("PartDesign::Pocket", "Pocket015")
body.addObject(pocket16)
pocket16.Profile = sketch20
pocket16.Length = Q("0.25 in")

sketch21 = doc.addObject("Sketcher::SketchObject", "Sketch020")
body.addObject(sketch21)
sketch21.AttachmentSupport = (doc.XZ_Plane, [""])
sketch21.MapMode = "FlatFace"
sketch21.AttachmentOffset = App.Placement(V(0, 0, -1.5 * 25.4), App.Rotation())
add_polygon(sketch21, [(38.1, 16.5), (38.1, 17.8), (76.2, 17.8), (76.2, 16.5)])
add_polygon(sketch21, [(76.2, 20.3), (38.1, 20.3), (38.1, 21.6), (76.2, 21.6)])
sketch21.addConstraint(Sketcher.Constraint("Vertical", 0))
sketch21.addConstraint(Sketcher.Constraint("Horizontal", 1))
sketch21.addConstraint(Sketcher.Constraint("Vertical", 2))
sketch21.addConstraint(Sketcher.Constraint("Horizontal", 3))
sketch21.addConstraint(Sketcher.Constraint("Horizontal", 4))
sketch21.addConstraint(Sketcher.Constraint("Vertical", 5))
sketch21.addConstraint(Sketcher.Constraint("Horizontal", 6))
sketch21.addConstraint(Sketcher.Constraint("Vertical", 7))
sketch21.addConstraint(Sketcher.Constraint("Vertical", 3, 2, 4, 2))
sketch21.addConstraint(Sketcher.Constraint("Vertical", 2, 2, 6, 2))
sketch21.addConstraint(Sketcher.Constraint("Equal", 2, 5))
sketch21.addConstraint(Sketcher.Constraint("DistanceX", 1, 1, 1, 2, Q("1.5 in")))
sketch21.addConstraint(Sketcher.Constraint("DistanceY", 0, 1, 0, 2, Q("0.05 in")))
sketch21.addConstraint(Sketcher.Constraint("DistanceX", -1, 1, 0, 2, Q("1.5 in")))
sketch21.addConstraint(Sketcher.Constraint("DistanceY", -1, 1, 0, 2, Q("0.7 in")))
sketch21.addConstraint(Sketcher.Constraint("DistanceY", -1, 1, 4, 2, Q("0.8 in")))
pocket17 = doc.addObject("PartDesign::Pocket", "Pocket016")
body.addObject(pocket17)
pocket17.Profile = sketch21
pocket17.Length = Q("0.25 in")
pocket17.Reversed = True

sketch22 = doc.addObject("Sketcher::SketchObject", "Sketch021")
body.addObject(sketch22)
sketch22.AttachmentSupport = (doc.YZ_Plane, [""])
sketch22.MapMode = "FlatFace"
sketch22.AttachmentOffset = App.Placement(V(0, 0, 1.5 * 25.4), App.Rotation())
add_polygon(sketch22, [(76.2, 17.8), (32, 17.8), (32, 16.5), (76.2, 16.5)])
add_polygon(sketch22, [(76.2, 21.6), (32, 21.6), (32, 20.3), (76.2, 20.3)])
sketch22.addConstraint(Sketcher.Constraint("Horizontal", 0))
sketch22.addConstraint(Sketcher.Constraint("Vertical", 1))
sketch22.addConstraint(Sketcher.Constraint("Horizontal", 2))
sketch22.addConstraint(Sketcher.Constraint("Vertical", 3))
sketch22.addConstraint(Sketcher.Constraint("Horizontal", 4))
sketch22.addConstraint(Sketcher.Constraint("Vertical", 5))
sketch22.addConstraint(Sketcher.Constraint("Horizontal", 6))
sketch22.addConstraint(Sketcher.Constraint("Vertical", 7))
sketch22.addConstraint(Sketcher.Constraint("Vertical", 1, 2, 4, 2))
sketch22.addConstraint(Sketcher.Constraint("Vertical", 3, 2, 6, 2))
sketch22.addConstraint(Sketcher.Constraint("Equal", 3, 5))
sketch22.addConstraint(Sketcher.Constraint("DistanceY", 1, 2, 1, 1, Q("0.05 in")))
sketch22.addConstraint(Sketcher.Constraint("DistanceX", -1, 1, 2, 2, Q("3 in")))
sketch22.addConstraint(Sketcher.Constraint("DistanceX", 0, 2, 0, 1, Q("1.74 in")))
sketch22.addConstraint(Sketcher.Constraint("DistanceY", -1, 1, 0, 2, Q("0.7 in")))
sketch22.addConstraint(Sketcher.Constraint("DistanceY", -1, 1, 5, 2, Q("0.8 in")))
pocket18 = doc.addObject("PartDesign::Pocket", "Pocket017")
body.addObject(pocket18)
pocket18.Profile = sketch22
pocket18.Length = Q("0.25 in")

sketch23 = doc.addObject("Sketcher::SketchObject", "Sketch022")
body.addObject(sketch23)
sketch23.AttachmentSupport = (doc.XY_Plane, [""])
sketch23.MapMode = "FlatFace"
sketch23.AttachmentOffset = App.Placement(V(0, 0, 0.85 * 25.4), App.Rotation())
add_polygon(sketch23, [(32, 32), (32, 38), (38, 38), (38, 32)])
sketch23.addConstraint(Sketcher.Constraint("Vertical", 0))
sketch23.addConstraint(Sketcher.Constraint("Horizontal", 1))
sketch23.addConstraint(Sketcher.Constraint("Vertical", 2))
sketch23.addConstraint(Sketcher.Constraint("Horizontal", 3))
sketch23.addConstraint(Sketcher.Constraint("Equal", 3, 0))
sketch23.addConstraint(Sketcher.Constraint("DistanceX", 1, 1, 1, 2, Q("0.24 in")))
sketch23.addConstraint(Sketcher.Constraint("DistanceY", -1, 1, 0, 2, Q("1.5 in")))
sketch23.addConstraint(Sketcher.Constraint("DistanceX", -1, 1, 1, 2, Q("1.5 in")))
pad5 = doc.addObject("PartDesign::Pad", "Pad004")
body.addObject(pad5)
pad5.Profile = sketch23
pad5.Length = Q("0.2 in")
pad5.Reversed = True

sketch24 = doc.addObject("Sketcher::SketchObject", "Sketch023")
body.addObject(sketch24)
sketch24.AttachmentSupport = (doc.YZ_Plane, [""])
sketch24.MapMode = "FlatFace"
sketch24.AttachmentOffset = App.Placement(V(0, 0, 0.85 * 25.4), App.Rotation())
add_polygon(sketch24, [(32, 32), (32, 38), (38, 38), (38, 32)])
sketch24.addConstraint(Sketcher.Constraint("Vertical", 0))
sketch24.addConstraint(Sketcher.Constraint("Horizontal", 1))
sketch24.addConstraint(Sketcher.Constraint("Vertical", 2))
sketch24.addConstraint(Sketcher.Constraint("Horizontal", 3))
sketch24.addConstraint(Sketcher.Constraint("Equal", 3, 0))
sketch24.addConstraint(Sketcher.Constraint("DistanceX", 1, 1, 1, 2, Q("0.24 in")))
sketch24.addConstraint(Sketcher.Constraint("DistanceY", -1, 1, 0, 2, Q("1.5 in")))
sketch24.addConstraint(Sketcher.Constraint("DistanceX", -1, 1, 1, 2, Q("1.5 in")))
pad6 = doc.addObject("PartDesign::Pad", "Pad005")
body.addObject(pad6)
pad6.Profile = sketch24
pad6.Length = Q("0.2 in")
pad6.Reversed = True

sketch25 = doc.addObject("Sketcher::SketchObject", "Sketch024")
body.addObject(sketch25)
sketch25.AttachmentSupport = (doc.YZ_Plane, [""])
sketch25.MapMode = "FlatFace"
add_polygon(sketch25, [(0, 76), (19, 76), (19, 0), (0, 0)])
sketch25.addConstraint(Sketcher.Constraint("Horizontal", 0))
sketch25.addConstraint(Sketcher.Constraint("Vertical", 1))
sketch25.addConstraint(Sketcher.Constraint("Horizontal", 2))
sketch25.addConstraint(Sketcher.Constraint("Vertical", 3))
sketch25.addConstraint(Sketcher.Constraint("Coincident", 2, 2, -1, 1))
sketch25.addConstraint(Sketcher.Constraint("DistanceY", 1, 2, 1, 1, Q("3 in")))
sketch25.addConstraint(Sketcher.Constraint("DistanceX", 0, 1, 0, 2, Q("0.75 in")))
pad7 = doc.addObject("PartDesign::Pad", "Pad006")
body.addObject(pad7)
pad7.Profile = sketch25
pad7.Length = Q("0.5 in")
pad7.Reversed = True

sketch26 = doc.addObject("Sketcher::SketchObject", "Sketch025")
body.addObject(sketch26)
sketch26.AttachmentSupport = (doc.YZ_Plane, [""])
sketch26.MapMode = "FlatFace"
sketch26.AttachmentOffset = App.Placement(V(0, 0, -0.5 * 25.4), App.Rotation())
add_polygon(sketch26, [(19, 76), (38, 76), (38, 0), (19, 0)])
sketch26.addConstraint(Sketcher.Constraint("Horizontal", 0))
sketch26.addConstraint(Sketcher.Constraint("Vertical", 1))
sketch26.addConstraint(Sketcher.Constraint("Horizontal", 2))
sketch26.addConstraint(Sketcher.Constraint("Vertical", 3))
sketch26.addConstraint(Sketcher.Constraint("PointOnObject", 1, 2, -1))
sketch26.addConstraint(Sketcher.Constraint("DistanceY", 1, 2, 1, 1, Q("3 in")))
sketch26.addConstraint(Sketcher.Constraint("DistanceX", 0, 1, 0, 2, Q("0.75 in")))
sketch26.addConstraint(Sketcher.Constraint("DistanceX", -1, 1, 2, 2, Q("0.75 in")))
pad8 = doc.addObject("PartDesign::Pad", "Pad007")
body.addObject(pad8)
pad8.Profile = sketch26
pad8.Length = Q("0.25 in")

sketch27 = doc.addObject("Sketcher::SketchObject", "Sketch026")
body.addObject(sketch27)
sketch27.AttachmentSupport = (doc.YZ_Plane, [""])
sketch27.MapMode = "FlatFace"
sketch27.AttachmentOffset = App.Placement(V(0, 0, -0.5 * 25.4), App.Rotation())
add_polygon(sketch27, [(0, -19), (0, 0), (76, 0), (76, -19)])
sketch27.addConstraint(Sketcher.Constraint("Vertical", 0))
sketch27.addConstraint(Sketcher.Constraint("Horizontal", 1))
sketch27.addConstraint(Sketcher.Constraint("Vertical", 2))
sketch27.addConstraint(Sketcher.Constraint("Horizontal", 3))
sketch27.addConstraint(Sketcher.Constraint("Coincident", 0, 2, -1, 1))
sketch27.addConstraint(Sketcher.Constraint("DistanceX", 1, 1, 1, 2, Q("3 in")))
sketch27.addConstraint(Sketcher.Constraint("DistanceY", 0, 1, 0, 2, Q("0.75 in")))
pad9 = doc.addObject("PartDesign::Pad", "Pad008")
body.addObject(pad9)
pad9.Profile = sketch27
pad9.Length = Q("0.25 in")

sketch28 = doc.addObject("Sketcher::SketchObject", "Sketch027")
body.addObject(sketch28)
sketch28.AttachmentSupport = (doc.XZ_Plane, [""])
sketch28.MapMode = "FlatFace"
sketch28.AttachmentOffset = App.Placement(V(0, 0, -0.75 * 25.4), App.Rotation())
add_polygon(sketch28, [(-6, 0), (0, 0), (0, -19), (-6, -19)])
sketch28.addConstraint(Sketcher.Constraint("Horizontal", 0))
sketch28.addConstraint(Sketcher.Constraint("Vertical", 1))
sketch28.addConstraint(Sketcher.Constraint("Horizontal", 2))
sketch28.addConstraint(Sketcher.Constraint("Vertical", 3))
sketch28.addConstraint(Sketcher.Constraint("Coincident", 0, 2, -1, 1))
sketch28.addConstraint(Sketcher.Constraint("DistanceX", 0, 1, 0, 2, Q("0.25 in")))
sketch28.addConstraint(Sketcher.Constraint("DistanceY", 1, 2, 1, 1, Q("0.75 in")))
pad10 = doc.addObject("PartDesign::Pad", "Pad009")
body.addObject(pad10)
pad10.Profile = sketch28
pad10.Length = Q("0.75 in")

sketch29 = doc.addObject("Sketcher::SketchObject", "Sketch028")
body.addObject(sketch29)
sketch29.AttachmentSupport = (doc.XZ_Plane, [""])
sketch29.MapMode = "FlatFace"
add_polygon(sketch29, [(6, 0), (0, 0), (0, -19), (6, -19)])
sketch29.addConstraint(Sketcher.Constraint("Horizontal", 0))
sketch29.addConstraint(Sketcher.Constraint("Vertical", 1))
sketch29.addConstraint(Sketcher.Constraint("Horizontal", 2))
sketch29.addConstraint(Sketcher.Constraint("Vertical", 3))
sketch29.addConstraint(Sketcher.Constraint("Coincident", 0, 2, -1, 1))
sketch29.addConstraint(Sketcher.Constraint("DistanceX", 0, 2, 0, 1, Q("0.25 in")))
sketch29.addConstraint(Sketcher.Constraint("DistanceY", 1, 2, 1, 1, Q("0.75 in")))
pad11 = doc.addObject("PartDesign::Pad", "Pad010")
body.addObject(pad11)
pad11.Profile = sketch29
pad11.Length = Q("3 in")
pad11.Reversed = True

sketch30 = doc.addObject("Sketcher::SketchObject", "Sketch029")
body.addObject(sketch30)
sketch30.AttachmentSupport = (doc.YZ_Plane, [""])
sketch30.MapMode = "FlatFace"
sketch30.AttachmentOffset = App.Placement(V(0, 0, -0.5 * 25.4), App.Rotation())
sketch30.addGeometry(Part.Circle(V(50.8, -10.2, 0), V(0, 0, 1), 3.8), False)
sketch30.addConstraint(Sketcher.Constraint("Diameter", 0, Q("0.3 in")))
sketch30.addConstraint(Sketcher.Constraint("DistanceX", -1, 1, 0, 3, Q("2 in")))
sketch30.addConstraint(Sketcher.Constraint("DistanceY", 0, 3, -1, 1, Q("0.4 in")))
pocket19 = doc.addObject("PartDesign::Pocket", "Pocket018")
body.addObject(pocket19)
pocket19.Profile = sketch30
pocket19.Type = "ThroughAll"
pocket19.Reversed = True

doc.recompute()
